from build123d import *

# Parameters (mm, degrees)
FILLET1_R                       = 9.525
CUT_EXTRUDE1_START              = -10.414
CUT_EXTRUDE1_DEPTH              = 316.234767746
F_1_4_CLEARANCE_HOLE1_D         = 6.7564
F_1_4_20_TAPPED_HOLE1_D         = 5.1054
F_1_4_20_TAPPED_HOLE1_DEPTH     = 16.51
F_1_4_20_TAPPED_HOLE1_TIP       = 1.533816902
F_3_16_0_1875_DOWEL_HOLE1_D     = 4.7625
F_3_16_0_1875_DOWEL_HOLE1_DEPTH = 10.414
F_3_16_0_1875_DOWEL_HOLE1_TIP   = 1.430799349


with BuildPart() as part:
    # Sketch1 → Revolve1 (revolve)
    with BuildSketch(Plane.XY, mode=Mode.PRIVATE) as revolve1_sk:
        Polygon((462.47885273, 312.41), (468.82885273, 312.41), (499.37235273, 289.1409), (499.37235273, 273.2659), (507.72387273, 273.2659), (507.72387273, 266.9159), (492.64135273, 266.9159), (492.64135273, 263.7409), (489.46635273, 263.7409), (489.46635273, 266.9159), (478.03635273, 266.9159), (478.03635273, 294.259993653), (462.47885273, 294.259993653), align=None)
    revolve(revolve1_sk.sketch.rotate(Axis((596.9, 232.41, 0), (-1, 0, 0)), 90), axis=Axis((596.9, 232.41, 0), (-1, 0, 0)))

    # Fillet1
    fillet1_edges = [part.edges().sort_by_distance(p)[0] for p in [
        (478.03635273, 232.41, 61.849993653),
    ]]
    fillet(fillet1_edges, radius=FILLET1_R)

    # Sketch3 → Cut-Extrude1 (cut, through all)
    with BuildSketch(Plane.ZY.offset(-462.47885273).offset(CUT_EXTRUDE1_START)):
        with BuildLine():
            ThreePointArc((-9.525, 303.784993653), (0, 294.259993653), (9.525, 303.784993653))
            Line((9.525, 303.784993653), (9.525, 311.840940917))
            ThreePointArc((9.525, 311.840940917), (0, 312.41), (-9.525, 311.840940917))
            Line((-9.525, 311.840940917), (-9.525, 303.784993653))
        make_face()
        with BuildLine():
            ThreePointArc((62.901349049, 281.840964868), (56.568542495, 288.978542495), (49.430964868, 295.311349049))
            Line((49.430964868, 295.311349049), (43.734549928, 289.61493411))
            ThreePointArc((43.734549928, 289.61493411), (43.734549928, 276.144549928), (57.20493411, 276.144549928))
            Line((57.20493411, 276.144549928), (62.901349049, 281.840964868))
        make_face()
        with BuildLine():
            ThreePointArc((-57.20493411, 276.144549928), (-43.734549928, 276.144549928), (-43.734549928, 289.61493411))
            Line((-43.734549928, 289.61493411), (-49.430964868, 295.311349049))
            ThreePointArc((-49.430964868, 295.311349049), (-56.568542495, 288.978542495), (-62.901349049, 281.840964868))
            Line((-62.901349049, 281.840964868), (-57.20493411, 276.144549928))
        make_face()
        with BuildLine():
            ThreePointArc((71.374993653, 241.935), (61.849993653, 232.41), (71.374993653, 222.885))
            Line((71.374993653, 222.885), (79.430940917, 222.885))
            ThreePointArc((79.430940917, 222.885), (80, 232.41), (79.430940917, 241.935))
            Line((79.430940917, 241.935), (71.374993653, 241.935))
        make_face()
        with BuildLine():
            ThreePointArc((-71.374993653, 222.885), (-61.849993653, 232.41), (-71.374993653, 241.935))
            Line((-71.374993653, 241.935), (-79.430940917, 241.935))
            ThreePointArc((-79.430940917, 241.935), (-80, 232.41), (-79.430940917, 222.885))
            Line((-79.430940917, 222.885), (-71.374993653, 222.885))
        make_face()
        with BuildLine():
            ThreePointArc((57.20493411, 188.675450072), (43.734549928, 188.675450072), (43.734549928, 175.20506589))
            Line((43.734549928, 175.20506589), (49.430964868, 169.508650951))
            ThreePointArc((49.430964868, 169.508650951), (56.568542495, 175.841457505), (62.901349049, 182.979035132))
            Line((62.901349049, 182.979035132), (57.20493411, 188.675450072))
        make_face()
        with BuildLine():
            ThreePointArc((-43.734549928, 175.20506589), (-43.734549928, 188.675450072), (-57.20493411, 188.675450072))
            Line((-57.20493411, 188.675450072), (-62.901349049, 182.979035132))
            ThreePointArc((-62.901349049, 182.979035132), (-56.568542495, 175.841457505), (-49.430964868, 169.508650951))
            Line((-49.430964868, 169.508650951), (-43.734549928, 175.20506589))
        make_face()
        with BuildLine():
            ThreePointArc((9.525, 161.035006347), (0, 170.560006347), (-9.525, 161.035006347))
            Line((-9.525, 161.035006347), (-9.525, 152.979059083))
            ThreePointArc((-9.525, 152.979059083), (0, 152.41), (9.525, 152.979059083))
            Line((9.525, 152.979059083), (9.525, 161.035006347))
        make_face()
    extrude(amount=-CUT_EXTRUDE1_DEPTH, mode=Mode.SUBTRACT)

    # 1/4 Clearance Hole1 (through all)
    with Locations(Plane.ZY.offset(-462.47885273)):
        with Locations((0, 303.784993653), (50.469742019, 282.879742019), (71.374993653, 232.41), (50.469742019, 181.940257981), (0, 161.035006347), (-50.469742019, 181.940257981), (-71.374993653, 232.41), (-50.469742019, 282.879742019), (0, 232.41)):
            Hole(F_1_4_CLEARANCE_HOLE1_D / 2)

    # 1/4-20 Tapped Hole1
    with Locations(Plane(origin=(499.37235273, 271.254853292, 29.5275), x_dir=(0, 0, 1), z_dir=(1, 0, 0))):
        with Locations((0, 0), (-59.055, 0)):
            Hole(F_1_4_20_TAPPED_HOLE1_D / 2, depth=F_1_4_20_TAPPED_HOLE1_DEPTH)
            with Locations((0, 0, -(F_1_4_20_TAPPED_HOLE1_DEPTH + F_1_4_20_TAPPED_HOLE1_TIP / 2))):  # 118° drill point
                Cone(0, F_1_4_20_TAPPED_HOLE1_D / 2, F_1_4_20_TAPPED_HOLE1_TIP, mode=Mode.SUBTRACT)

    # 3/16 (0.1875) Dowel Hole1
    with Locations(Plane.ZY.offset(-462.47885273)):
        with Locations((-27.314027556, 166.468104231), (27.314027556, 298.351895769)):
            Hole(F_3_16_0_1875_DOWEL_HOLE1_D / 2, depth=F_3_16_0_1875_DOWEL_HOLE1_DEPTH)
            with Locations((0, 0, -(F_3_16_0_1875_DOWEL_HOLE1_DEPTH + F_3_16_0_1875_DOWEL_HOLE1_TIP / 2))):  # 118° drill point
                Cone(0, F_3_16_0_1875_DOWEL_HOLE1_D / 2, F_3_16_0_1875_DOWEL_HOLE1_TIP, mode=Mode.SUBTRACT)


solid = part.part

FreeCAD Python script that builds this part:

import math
import FreeCAD as App
import Part
import Sketcher
from FreeCAD import Vector
Q = App.Units.Quantity


def edges_at(feature, points):
    """Names of the edges that pass closest to the given points."""
    edges = feature.Shape.Edges
    near = lambda p: min(range(len(edges)), key=lambda i: edges[i].distToShape(Part.Vertex(*p))[0])
    return sorted({f"Edge{near(p) + 1}" for p in points})


def add_polygon(sketch, points):
    """Adds a closed chain of lines whose ends are joined by coincident constraints."""
    first, n = sketch.GeometryCount, len(points)
    for a, b in zip(points, points[1:] + points[:1]):
        sketch.addGeometry(Part.LineSegment(App.Vector(*a, 0), App.Vector(*b, 0)), False)
    for i in range(n):
        sketch.addConstraint(Sketcher.Constraint("Coincident", first + i, 2, first + (i + 1) % n, 1))

doc = App.newDocument("Part")
body = doc.addObject("PartDesign::Body", "Body")

sketch1 = doc.addObject("Sketcher::SketchObject", "Sketch")
body.addObject(sketch1)
sketch1.AttachmentSupport = (doc.XY_Plane, [""])
sketch1.MapMode = "FlatFace"
add_polygon(sketch1, [(468.8, 312.4), (462.5, 312.4), (462.5, 294.3), (478, 294.3), (478, 266.9), (489.5, 266.9), (489.5, 263.7), (492.6, 263.7), (492.6, 266.9), (507.7, 266.9), (507.7, 273.3), (499.4, 273.3), (499.4, 289.1)])
sketch1.addGeometry(Part.LineSegment(Vector(507.7, 232.4, 0), Vector(462.5, 232.4, 0)), True)
sketch1.addConstraint([
    Sketcher.Constraint("Horizontal", 0),
    Sketcher.Constraint("Vertical", 1),
    Sketcher.Constraint("Horizontal", 2),
    Sketcher.Constraint("Vertical", 3),
    Sketcher.Constraint("Horizontal", 4),
    Sketcher.Constraint("Vertical", 5),
    Sketcher.Constraint("Horizontal", 6),
    Sketcher.Constraint("Vertical", 7),
    Sketcher.Constraint("Horizontal", 8),
    Sketcher.Constraint("Vertical", 9),
    Sketcher.Constraint("Horizontal", 10),
    Sketcher.Constraint("Vertical", 11),
    Sketcher.Constraint("Horizontal", 13),
    Sketcher.Constraint("Horizontal", 4, 2, 7, 2),
    Sketcher.Constraint("Vertical", 9, 2, 13, 1),
    Sketcher.Constraint("Vertical", 1, 2, 13, 2),
    Sketcher.Constraint("Equal", 6, 5),
    Sketcher.Constraint("Equal", 0, 9),
    Sketcher.Constraint("DistanceX", 0, 2, 0, 1, Q("0.25 in")),
    Sketcher.Constraint("DistanceX", 4, 1, 4, 2, Q("0.45 in")),
    Sketcher.Constraint("DistanceX", 6, 1, 6, 2, Q("0.125 in")),
    Sketcher.Constraint("DistanceY", 11, 1, 11, 2, Q("0.625 in")),
    Sketcher.Constraint("DistanceY", -1, 1, 13, 1, Q("9.15 in")),
    Sketcher.Constraint("DistanceX", 4, 2, 10, 2, Q("0.39 in")),
    Sketcher.Constraint("DistanceX", 2, 1, 2, 2, Q("0.6125 in")),
    Sketcher.Constraint("DistanceX", 8, 1, 8, 2, Q("0.5938 in")),
    Sketcher.Constraint("DistanceY", -1, 1, 3, 2, Q("10.5085 in")),
    Sketcher.Constraint("DistanceY", -1, 1, 0, 2, 312.41),
    Sketcher.Constraint("DistanceY", 1, 2, 1, 1, 18.150006),
    Sketcher.Constraint("DistanceX", -1, 1, 0, 2, 462.478853),
])
revolution = doc.addObject("PartDesign::Revolution", "Revolution")
body.addObject(revolution)
revolution.Profile = sketch1
revolution.ReferenceAxis = (sketch1, ["Axis0"])
revolution.Angle = 360
doc.recompute()

fillet = doc.addObject("PartDesign::Fillet", "Fillet")
body.addObject(fillet)
fillet.Base = (revolution, edges_at(revolution, [(478.036, 232.41, 61.85)]))
fillet.Radius = Q("0.375 in")

sketch2 = doc.addObject("Sketcher::SketchObject", "Sketch001")
body.addObject(sketch2)
sketch2.AttachmentSupport = (doc.YZ_Plane, [""])
sketch2.MapMode = "FlatFace"
sketch2.AttachmentOffset = App.Placement(Vector(0, 0, 472.892853), App.Rotation())
sketch2.addGeometry([
    Part.ArcOfCircle(Part.Circle(Vector(304, 0, 0), Vector(0, 0, 1), 10), math.radians(90), math.radians(270)),
    Part.LineSegment(Vector(304, 10, 0), Vector(312, 10, 0)),
    Part.ArcOfCircle(Part.Circle(Vector(232, 0, 0), Vector(0, 0, 1), 80), math.radians(-6.84), math.radians(6.84)),
    Part.LineSegment(Vector(312, -10, 0), Vector(304, -10, 0)),
    Part.ArcOfCircle(Part.Circle(Vector(232, 0, 0), Vector(0, 0, 1), 80), math.radians(38.16), math.radians(51.84)),
    Part.LineSegment(Vector(295, 49, 0), Vector(290, 44, 0)),
    Part.ArcOfCircle(Part.Circle(Vector(283, 50, 0), Vector(0, 0, 1), 10), math.radians(135), math.radians(315)),
    Part.LineSegment(Vector(276, 57, 0), Vector(282, 63, 0)),
    Part.ArcOfCircle(Part.Circle(Vector(283, -50, 0), Vector(0, 0, 1), 10), math.radians(45), math.radians(225)),
    Part.LineSegment(Vector(290, -44, 0), Vector(295, -49, 0)),
    Part.ArcOfCircle(Part.Circle(Vector(232, 0, 0), Vector(0, 0, 1), 80), math.radians(-51.84), math.radians(-38.16)),
    Part.LineSegment(Vector(282, -63, 0), Vector(276, -57, 0)),
    Part.ArcOfCircle(Part.Circle(Vector(232, 71, 0), Vector(0, 0, 1), 10), math.radians(180), math.radians(360)),
    Part.LineSegment(Vector(223, 71, 0), Vector(223, 79, 0)),
    Part.ArcOfCircle(Part.Circle(Vector(232, 0, 0), Vector(0, 0, 1), 80), math.radians(83.16), math.radians(96.84)),
    Part.LineSegment(Vector(242, 79, 0), Vector(242, 71, 0)),
    Part.ArcOfCircle(Part.Circle(Vector(232, -71, 0), Vector(0, 0, 1), 10), math.radians(0), math.radians(180)),
    Part.LineSegment(Vector(242, -71, 0), Vector(242, -79, 0)),
    Part.ArcOfCircle(Part.Circle(Vector(232, 0, 0), Vector(0, 0, 1), 80), math.radians(-96.84), math.radians(-83.16)),
    Part.LineSegment(Vector(223, -79, 0), Vector(223, -71, 0)),
    Part.ArcOfCircle(Part.Circle(Vector(182, 50, 0), Vector(0, 0, 1), 10), math.radians(-135), math.radians(45)),
    Part.LineSegment(Vector(175, 44, 0), Vector(170, 49, 0)),
    Part.ArcOfCircle(Part.Circle(Vector(232, 0, 0), Vector(0, 0, 1), 80), math.radians(128.16), math.radians(141.84)),
    Part.LineSegment(Vector(183, 63, 0), Vector(189, 57, 0)),
    Part.ArcOfCircle(Part.Circle(Vector(182, -50, 0), Vector(0, 0, 1), 10), math.radians(-45), math.radians(135)),
    Part.LineSegment(Vector(189, -57, 0), Vector(183, -63, 0)),
    Part.ArcOfCircle(Part.Circle(Vector(232, 0, 0), Vector(0, 0, 1), 80), math.radians(-141.84), math.radians(-128.16)),
    Part.LineSegment(Vector(170, -49, 0), Vector(175, -44, 0)),
    Part.ArcOfCircle(Part.Circle(Vector(161, 0, 0), Vector(0, 0, 1), 10), math.radians(-90), math.radians(90)),
    Part.LineSegment(Vector(161, -10, 0), Vector(153, -10, 0)),
    Part.ArcOfCircle(Part.Circle(Vector(232, 0, 0), Vector(0, 0, 1), 80), math.radians(173.16), math.radians(186.84)),
    Part.LineSegment(Vector(153, 10, 0), Vector(161, 10, 0)),
], False)
sketch2.addConstraint([
    Sketcher.Constraint("Tangent", 0, 1, 1, 1),
    Sketcher.Constraint("Coincident", 1, 2, 2, 2),
    Sketcher.Constraint("Coincident", 2, 1, 3, 1),
    Sketcher.Constraint("Tangent", 3, 2, 0, 2),
    Sketcher.Constraint("Coincident", 4, 1, 5, 1),
    Sketcher.Constraint("Tangent", 5, 2, 6, 2),
    Sketcher.Constraint("Tangent", 6, 1, 7, 1),
    Sketcher.Constraint("Coincident", 7, 2, 4, 2),
    Sketcher.Constraint("Tangent", 8, 1, 9, 1),
    Sketcher.Constraint("Coincident", 9, 2, 10, 2),
    Sketcher.Constraint("Coincident", 10, 1, 11, 1),
    Sketcher.Constraint("Tangent", 11, 2, 8, 2),
    Sketcher.Constraint("Tangent", 12, 1, 13, 1),
    Sketcher.Constraint("Coincident", 13, 2, 14, 2),
    Sketcher.Constraint("Coincident", 14, 1, 15, 1),
    Sketcher.Constraint("Tangent", 15, 2, 12, 2),
    Sketcher.Constraint("Tangent", 16, 1, 17, 1),
    Sketcher.Constraint("Coincident", 17, 2, 18, 2),
    Sketcher.Constraint("Coincident", 18, 1, 19, 1),
    Sketcher.Constraint("Tangent", 19, 2, 16, 2),
    Sketcher.Constraint("Tangent", 20, 1, 21, 1),
    Sketcher.Constraint("Coincident", 21, 2, 22, 2),
    Sketcher.Constraint("Coincident", 22, 1, 23, 1),
    Sketcher.Constraint("Tangent", 23, 2, 20, 2),
    Sketcher.Constraint("Tangent", 24, 1, 25, 1),
    Sketcher.Constraint("Coincident", 25, 2, 26, 2),
    Sketcher.Constraint("Coincident", 26, 1, 27, 1),
    Sketcher.Constraint("Tangent", 27, 2, 24, 2),
    Sketcher.Constraint("Tangent", 28, 1, 29, 1),
    Sketcher.Constraint("Coincident", 29, 2, 30, 2),
    Sketcher.Constraint("Coincident", 30, 1, 31, 1),
    Sketcher.Constraint("Tangent", 31, 2, 28, 2),
    Sketcher.Constraint("Horizontal", 1),
    Sketcher.Constraint("Horizontal", 3),
    Sketcher.Constraint("Vertical", 13),
    Sketcher.Constraint("Vertical", 15),
    Sketcher.Constraint("Vertical", 17),
    Sketcher.Constraint("Vertical", 19),
    Sketcher.Constraint("Horizontal", 29),
    Sketcher.Constraint("Horizontal", 31),
    Sketcher.Constraint("Coincident", 4, 3, 2, 3),
    Sketcher.Constraint("Coincident", 10, 3, 2, 3),
    Sketcher.Constraint("Coincident", 14, 3, 2, 3),
    Sketcher.Constraint("Coincident", 18, 3, 2, 3),
    Sketcher.Constraint("Coincident", 22, 3, 2, 3),
    Sketcher.Constraint("Coincident", 26, 3, 2, 3),
    Sketcher.Constraint("Coincident", 30, 3, 2, 3),
    Sketcher.Constraint("Equal", 2, 4),
    Sketcher.Constraint("Equal", 0, 6),
    Sketcher.Constraint("Equal", 6, 8),
    Sketcher.Constraint("Equal", 4, 10),
    Sketcher.Constraint("Equal", 8, 12),
    Sketcher.Constraint("Equal", 10, 14),
    Sketcher.Constraint("Equal", 12, 16),
    Sketcher.Constraint("Equal", 14, 18),
    Sketcher.Constraint("Equal", 16, 20),
    Sketcher.Constraint("Equal", 18, 22),
    Sketcher.Constraint("Equal", 20, 24),
    Sketcher.Constraint("Equal", 22, 26),
    Sketcher.Constraint("Equal", 24, 28),
    Sketcher.Constraint("Equal", 26, 30),
    Sketcher.Constraint("Symmetric", 6, 3, 8, 3, -1),
    Sketcher.Constraint("Symmetric", 12, 3, 16, 3, -1),
    Sketcher.Constraint("Symmetric", 20, 3, 24, 3, -1),
    Sketcher.Constraint("Symmetric", 1, 2, 2, 1, -1),
    Sketcher.Constraint("PointOnObject", 28, 3, -1),
    Sketcher.Constraint("Parallel", 5, 7),
    Sketcher.Constraint("Perpendicular", 7, 9),
    Sketcher.Constraint("Parallel", 9, 11),
    Sketcher.Constraint("Parallel", 11, 21),
    Sketcher.Constraint("Parallel", 21, 23),
    Sketcher.Constraint("Perpendicular", 23, 25),
    Sketcher.Constraint("Parallel", 25, 27),
    Sketcher.Constraint("Horizontal", 6, 3, 20, 3),
    Sketcher.Constraint("Horizontal", 13, 2, 14, 1),
    Sketcher.Constraint("Horizontal", 5, 2, 20, 1),
    Sketcher.Constraint("Horizontal", 4, 1, 21, 2),
    Sketcher.Constraint("Equal", 3, 29),
    Sketcher.Constraint("Equal", 31, 13),
    Sketcher.Constraint("Equal", 5, 7),
    Sketcher.Constraint("Radius", 0, Q("0.375 in")),
    Sketcher.Constraint("DistanceX", -1, 1, 2, 3, Q("9.15 in")),
    Sketcher.Constraint("Radius", 2, 80.0),
    Sketcher.Constraint("DistanceX", 6, 3, 1, 2, 28.961199),
    Sketcher.Constraint("DistanceX", 1, 1, 1, 2, 8.055947),
])
pocket1 = doc.addObject("PartDesign::Pocket", "Pocket")
body.addObject(pocket1)
pocket1.Profile = sketch2
pocket1.Type = "ThroughAll"
pocket1.Reversed = True

sketch3 = doc.addObject("Sketcher::SketchObject", "Sketch002")
body.addObject(sketch3)
sketch3.AttachmentSupport = (doc.YZ_Plane, [""])
sketch3.MapMode = "FlatFace"
sketch3.AttachmentOffset = App.Placement(Vector(0, 0, 462.478853), App.Rotation())
sketch3.addGeometry([
    Part.Circle(Vector(303.8, 0, 0), Vector(0, 0, 1), 3.4),
    Part.Circle(Vector(282.9, 50.5, 0), Vector(0, 0, 1), 3.4),
    Part.Circle(Vector(232.4, 71.4, 0), Vector(0, 0, 1), 3.4),
    Part.Circle(Vector(181.9, 50.5, 0), Vector(0, 0, 1), 3.4),
    Part.Circle(Vector(161, 0, 0), Vector(0, 0, 1), 3.4),
    Part.Circle(Vector(181.9, -50.5, 0), Vector(0, 0, 1), 3.4),
    Part.Circle(Vector(232.4, -71.4, 0), Vector(0, 0, 1), 3.4),
    Part.Circle(Vector(282.9, -50.5, 0), Vector(0, 0, 1), 3.4),
    Part.Circle(Vector(232.4, 0, 0), Vector(0, 0, 1), 3.4),
], False)
sketch3.addConstraint([
    Sketcher.Constraint("Equal", 0, 1),
    Sketcher.Constraint("Equal", 1, 2),
    Sketcher.Constraint("Equal", 2, 3),
    Sketcher.Constraint("Equal", 3, 4),
    Sketcher.Constraint("Equal", 4, 5),
    Sketcher.Constraint("Equal", 5, 6),
    Sketcher.Constraint("Equal", 6, 7),
    Sketcher.Constraint("Equal", 7, 8),
    Sketcher.Constraint("Symmetric", 3, 3, 5, 3, -1),
    Sketcher.Constraint("Symmetric", 2, 3, 6, 3, -1),
    Sketcher.Constraint("Symmetric", 1, 3, 7, 3, -1),
    Sketcher.Constraint("PointOnObject", 0, 3, -1),
    Sketcher.Constraint("PointOnObject", 4, 3, -1),
    Sketcher.Constraint("PointOnObject", 8, 3, -1),
    Sketcher.Constraint("Horizontal", 1, 3, 3, 3),
    Sketcher.Constraint("Vertical", 6, 3, 8, 3),
    Sketcher.Constraint("Diameter", 0, Q("0.266 in")),
    Sketcher.Constraint("DistanceX", -1, 1, 2, 3, Q("9.15 in")),
    Sketcher.Constraint("DistanceX", 1, 3, 0, 3, 20.905252),
    Sketcher.Constraint("DistanceY", 1, 3, 2, 3, 20.905252),
    Sketcher.Constraint("DistanceX", 4, 3, 3, 3, 20.905252),
    Sketcher.Constraint("DistanceX", -1, 1, 0, 3, 303.784994),
    Sketcher.Constraint("DistanceY", -1, 1, 1, 3, 50.469742),
    Sketcher.Constraint("DistanceX", -1, 1, 3, 3, 181.940258),
])
doc.recompute()
hole = doc.addObject("PartDesign::Hole", "Hole")
body.addObject(hole)
hole.Profile = sketch3
hole.ThreadType = "None"
hole.Diameter = Q("0.266 in")
hole.DepthType = "ThroughAll"
hole.Reversed = True

sketch4 = doc.addObject("Sketcher::SketchObject", "Sketch003")
body.addObject(sketch4)
sketch4.AttachmentSupport = (doc.YZ_Plane, [""])
sketch4.MapMode = "FlatFace"
sketch4.AttachmentOffset = App.Placement(Vector(0, 0, 499.372353), App.Rotation())
sketch4.addGeometry([
    Part.Circle(Vector(271.3, 29.5, 0), Vector(0, 0, 1), 2.6),
    Part.Circle(Vector(271.3, -29.5, 0), Vector(0, 0, 1), 2.6),
], False)
sketch4.addConstraint([
    Sketcher.Constraint("Equal", 0, 1),
    Sketcher.Constraint("Symmetric", 0, 3, 1, 3, -1),
    Sketcher.Constraint("Diameter", 0, Q("0.201 in")),
    Sketcher.Constraint("DistanceY", 1, 3, 0, 3, Q("2.325 in")),
    Sketcher.Constraint("DistanceX", -1, 1, 0, 3, 271.254853),
])
doc.recompute()
hole2 = doc.addObject("PartDesign::Hole", "Hole001")
body.addObject(hole2)
hole2.Profile = sketch4
hole2.ThreadType = "None"
hole2.Diameter = Q("0.201 in")
hole2.DepthType = "Dimension"
hole2.Depth = Q("0.65 in")
hole2.DrillPoint = "Angled"
hole2.DrillPointAngle = 118

sketch5 = doc.addObject("Sketcher::SketchObject", "Sketch004")
body.addObject(sketch5)
sketch5.AttachmentSupport = (doc.YZ_Plane, [""])
sketch5.MapMode = "FlatFace"
sketch5.AttachmentOffset = App.Placement(Vector(0, 0, 462.478853), App.Rotation())
sketch5.addGeometry([
    Part.Circle(Vector(166.5, -27.3, 0), Vector(0, 0, 1), 2.4),
    Part.Circle(Vector(298.4, 27.3, 0), Vector(0, 0, 1), 2.4),
], False)
sketch5.addConstraint([
    Sketcher.Constraint("Equal", 0, 1),
    Sketcher.Constraint("Diameter", 0, Q("0.1875 in")),
    Sketcher.Constraint("DistanceX", 0, 3, 1, 3, 131.883792),
    Sketcher.Constraint("DistanceX", -1, 1, 0, 3, 166.468104),
    Sketcher.Constraint("DistanceY", 0, 3, -1, 1, 27.314028),
    Sketcher.Constraint("DistanceY", -1, 1, 1, 3, 27.314028),
])
doc.recompute()
hole3 = doc.addObject("PartDesign::Hole", "Hole002")
body.addObject(hole3)
hole3.Profile = sketch5
hole3.ThreadType = "None"
hole3.Diameter = Q("0.1875 in")
hole3.DepthType = "Dimension"
hole3.Depth = Q("0.41 in")
hole3.DrillPoint = "Angled"
hole3.DrillPointAngle = 118
hole3.Reversed = True

doc.recompute()
